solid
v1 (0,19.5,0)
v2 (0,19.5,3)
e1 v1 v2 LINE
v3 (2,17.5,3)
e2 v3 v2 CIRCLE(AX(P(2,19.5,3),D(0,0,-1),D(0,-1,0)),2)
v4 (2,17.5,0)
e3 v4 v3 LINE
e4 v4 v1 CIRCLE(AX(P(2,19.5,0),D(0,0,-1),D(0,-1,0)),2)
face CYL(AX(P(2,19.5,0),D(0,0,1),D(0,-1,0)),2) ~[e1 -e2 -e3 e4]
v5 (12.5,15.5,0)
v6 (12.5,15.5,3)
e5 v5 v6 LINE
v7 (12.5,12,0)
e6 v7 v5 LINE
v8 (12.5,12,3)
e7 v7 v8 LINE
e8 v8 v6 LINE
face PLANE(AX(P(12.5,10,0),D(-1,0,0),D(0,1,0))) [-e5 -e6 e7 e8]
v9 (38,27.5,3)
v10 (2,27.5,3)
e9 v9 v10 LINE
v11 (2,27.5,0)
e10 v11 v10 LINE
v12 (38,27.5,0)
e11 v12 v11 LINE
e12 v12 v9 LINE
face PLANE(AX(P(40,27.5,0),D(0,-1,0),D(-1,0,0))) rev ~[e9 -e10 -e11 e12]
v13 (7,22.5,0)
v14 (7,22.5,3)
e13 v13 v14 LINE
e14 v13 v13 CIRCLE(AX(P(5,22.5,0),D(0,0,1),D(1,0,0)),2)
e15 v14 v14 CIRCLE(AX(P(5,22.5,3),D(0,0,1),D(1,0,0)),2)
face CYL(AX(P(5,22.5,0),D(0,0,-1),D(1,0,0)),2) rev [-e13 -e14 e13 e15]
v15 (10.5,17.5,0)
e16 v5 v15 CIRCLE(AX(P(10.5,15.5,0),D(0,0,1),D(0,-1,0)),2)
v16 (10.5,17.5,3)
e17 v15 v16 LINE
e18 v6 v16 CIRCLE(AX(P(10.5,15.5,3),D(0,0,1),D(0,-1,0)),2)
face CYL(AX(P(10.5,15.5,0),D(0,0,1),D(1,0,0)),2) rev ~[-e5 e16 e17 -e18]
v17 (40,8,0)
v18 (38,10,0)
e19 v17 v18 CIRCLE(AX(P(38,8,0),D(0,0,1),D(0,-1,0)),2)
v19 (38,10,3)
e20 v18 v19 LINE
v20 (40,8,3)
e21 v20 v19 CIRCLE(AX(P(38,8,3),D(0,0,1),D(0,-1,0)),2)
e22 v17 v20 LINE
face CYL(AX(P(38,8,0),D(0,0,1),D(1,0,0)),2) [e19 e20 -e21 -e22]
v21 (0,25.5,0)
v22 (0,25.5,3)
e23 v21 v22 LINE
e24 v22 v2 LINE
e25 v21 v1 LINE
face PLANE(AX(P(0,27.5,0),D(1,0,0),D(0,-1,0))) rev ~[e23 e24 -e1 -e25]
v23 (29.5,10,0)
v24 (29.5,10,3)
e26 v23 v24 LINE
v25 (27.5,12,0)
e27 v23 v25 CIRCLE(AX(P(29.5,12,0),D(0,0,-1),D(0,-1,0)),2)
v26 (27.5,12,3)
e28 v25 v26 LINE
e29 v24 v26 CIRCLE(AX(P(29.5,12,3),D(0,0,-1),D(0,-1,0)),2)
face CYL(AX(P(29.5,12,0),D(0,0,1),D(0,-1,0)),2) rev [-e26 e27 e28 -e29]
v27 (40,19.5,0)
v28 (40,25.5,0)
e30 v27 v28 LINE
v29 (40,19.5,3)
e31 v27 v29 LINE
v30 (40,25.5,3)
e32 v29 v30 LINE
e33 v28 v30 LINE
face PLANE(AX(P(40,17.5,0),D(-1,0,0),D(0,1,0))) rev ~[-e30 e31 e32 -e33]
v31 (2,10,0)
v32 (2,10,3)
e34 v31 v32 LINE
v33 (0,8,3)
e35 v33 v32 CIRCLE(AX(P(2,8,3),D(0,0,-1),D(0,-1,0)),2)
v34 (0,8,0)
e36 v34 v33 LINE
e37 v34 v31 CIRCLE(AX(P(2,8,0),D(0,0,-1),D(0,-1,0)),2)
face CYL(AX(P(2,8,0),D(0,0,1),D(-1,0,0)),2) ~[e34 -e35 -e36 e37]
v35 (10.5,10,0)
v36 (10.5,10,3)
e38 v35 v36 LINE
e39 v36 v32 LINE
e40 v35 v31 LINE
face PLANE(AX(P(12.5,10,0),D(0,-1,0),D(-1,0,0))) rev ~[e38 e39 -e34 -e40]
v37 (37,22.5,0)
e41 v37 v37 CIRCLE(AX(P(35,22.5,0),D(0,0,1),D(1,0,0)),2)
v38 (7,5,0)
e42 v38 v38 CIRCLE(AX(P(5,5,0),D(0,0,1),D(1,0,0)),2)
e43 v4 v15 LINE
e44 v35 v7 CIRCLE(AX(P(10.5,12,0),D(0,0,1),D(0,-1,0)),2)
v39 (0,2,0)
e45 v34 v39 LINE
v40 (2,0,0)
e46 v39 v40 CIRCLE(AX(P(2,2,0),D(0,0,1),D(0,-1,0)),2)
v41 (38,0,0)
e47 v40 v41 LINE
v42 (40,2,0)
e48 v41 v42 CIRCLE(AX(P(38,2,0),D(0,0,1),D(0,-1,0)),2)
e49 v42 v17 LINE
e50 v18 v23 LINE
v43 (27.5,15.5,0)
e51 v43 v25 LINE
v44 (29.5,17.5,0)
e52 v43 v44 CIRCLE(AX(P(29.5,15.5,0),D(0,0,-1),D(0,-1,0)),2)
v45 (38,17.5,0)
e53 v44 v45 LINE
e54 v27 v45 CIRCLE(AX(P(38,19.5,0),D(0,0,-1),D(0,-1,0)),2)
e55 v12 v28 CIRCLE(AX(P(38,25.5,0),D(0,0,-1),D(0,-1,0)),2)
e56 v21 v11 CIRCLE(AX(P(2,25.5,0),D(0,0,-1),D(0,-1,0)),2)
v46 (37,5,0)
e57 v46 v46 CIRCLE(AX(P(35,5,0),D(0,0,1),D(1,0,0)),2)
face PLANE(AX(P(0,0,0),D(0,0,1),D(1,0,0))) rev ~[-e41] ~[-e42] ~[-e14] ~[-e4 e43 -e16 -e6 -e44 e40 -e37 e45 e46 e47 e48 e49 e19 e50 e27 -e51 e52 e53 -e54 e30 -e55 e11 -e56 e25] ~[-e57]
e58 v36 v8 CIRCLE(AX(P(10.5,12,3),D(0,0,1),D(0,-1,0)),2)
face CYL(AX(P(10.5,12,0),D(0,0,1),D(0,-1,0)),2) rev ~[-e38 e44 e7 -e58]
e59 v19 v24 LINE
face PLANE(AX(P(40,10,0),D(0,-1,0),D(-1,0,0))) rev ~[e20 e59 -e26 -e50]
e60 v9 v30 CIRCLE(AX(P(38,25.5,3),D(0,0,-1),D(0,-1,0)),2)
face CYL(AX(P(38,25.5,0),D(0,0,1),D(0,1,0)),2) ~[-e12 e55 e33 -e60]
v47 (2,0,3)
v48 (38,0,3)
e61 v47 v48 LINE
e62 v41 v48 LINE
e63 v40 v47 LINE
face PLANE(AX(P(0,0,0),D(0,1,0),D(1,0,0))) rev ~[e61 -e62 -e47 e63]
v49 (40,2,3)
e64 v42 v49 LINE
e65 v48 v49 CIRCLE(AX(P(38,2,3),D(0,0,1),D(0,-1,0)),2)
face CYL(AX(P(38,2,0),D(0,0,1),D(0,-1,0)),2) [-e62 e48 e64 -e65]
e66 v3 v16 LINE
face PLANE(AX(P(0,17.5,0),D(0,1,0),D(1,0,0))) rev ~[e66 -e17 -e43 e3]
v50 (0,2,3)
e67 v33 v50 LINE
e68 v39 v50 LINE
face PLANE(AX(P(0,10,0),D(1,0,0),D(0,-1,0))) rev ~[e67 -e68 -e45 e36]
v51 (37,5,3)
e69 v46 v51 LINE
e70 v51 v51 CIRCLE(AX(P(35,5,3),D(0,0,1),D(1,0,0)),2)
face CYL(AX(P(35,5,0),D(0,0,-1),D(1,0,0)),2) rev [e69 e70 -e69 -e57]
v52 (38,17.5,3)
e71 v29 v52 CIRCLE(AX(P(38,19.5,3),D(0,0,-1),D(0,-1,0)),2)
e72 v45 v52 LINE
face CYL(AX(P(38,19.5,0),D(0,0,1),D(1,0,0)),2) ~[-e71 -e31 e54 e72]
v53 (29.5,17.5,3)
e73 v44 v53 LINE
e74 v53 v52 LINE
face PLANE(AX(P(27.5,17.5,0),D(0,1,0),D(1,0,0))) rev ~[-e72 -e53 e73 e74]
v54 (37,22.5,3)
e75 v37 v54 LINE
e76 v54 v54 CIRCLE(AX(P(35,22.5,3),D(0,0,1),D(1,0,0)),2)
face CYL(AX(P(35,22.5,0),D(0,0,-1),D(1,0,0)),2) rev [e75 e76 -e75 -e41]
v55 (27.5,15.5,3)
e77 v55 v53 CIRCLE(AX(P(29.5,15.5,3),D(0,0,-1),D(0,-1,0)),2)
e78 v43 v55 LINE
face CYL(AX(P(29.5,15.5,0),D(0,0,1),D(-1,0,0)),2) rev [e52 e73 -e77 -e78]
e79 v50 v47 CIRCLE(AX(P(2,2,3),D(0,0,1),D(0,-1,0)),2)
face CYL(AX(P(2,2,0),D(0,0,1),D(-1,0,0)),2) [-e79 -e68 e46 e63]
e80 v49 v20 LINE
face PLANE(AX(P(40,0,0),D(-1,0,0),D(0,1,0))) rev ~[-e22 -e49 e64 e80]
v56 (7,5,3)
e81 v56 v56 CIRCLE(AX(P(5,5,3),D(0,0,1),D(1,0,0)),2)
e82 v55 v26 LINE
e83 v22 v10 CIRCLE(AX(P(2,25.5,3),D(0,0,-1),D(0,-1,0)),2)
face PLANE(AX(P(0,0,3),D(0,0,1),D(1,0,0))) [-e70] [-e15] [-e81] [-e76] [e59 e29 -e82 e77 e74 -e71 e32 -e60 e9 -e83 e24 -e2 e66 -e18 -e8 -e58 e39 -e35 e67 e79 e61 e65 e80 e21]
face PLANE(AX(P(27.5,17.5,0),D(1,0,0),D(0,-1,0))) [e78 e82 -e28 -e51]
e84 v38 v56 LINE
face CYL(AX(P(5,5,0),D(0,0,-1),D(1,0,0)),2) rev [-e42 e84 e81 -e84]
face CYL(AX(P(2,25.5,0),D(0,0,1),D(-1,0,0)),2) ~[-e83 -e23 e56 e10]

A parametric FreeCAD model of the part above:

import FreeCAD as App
import Part
import Sketcher
from FreeCAD import Vector


def edges_at(feature, points):
    """Names of the edges that pass closest to the given points."""
    edges = feature.Shape.Edges
    near = lambda p: min(range(len(edges)), key=lambda i: edges[i].distToShape(Part.Vertex(*p))[0])
    return sorted({f"Edge{near(p) + 1}" for p in points})

doc = App.newDocument("Part")
body = doc.addObject("PartDesign::Body", "Body")

sketch1 = doc.addObject("Sketcher::SketchObject", "Sketch")
body.addObject(sketch1)
sketch1.AttachmentSupport = (doc.XY_Plane, [""])
sketch1.MapMode = "FlatFace"
sketch1.addGeometry([
    Part.LineSegment(Vector(0, 10, 0), Vector(0, 0, 0)),
    Part.LineSegment(Vector(0, 0, 0), Vector(40, 0, 0)),
    Part.LineSegment(Vector(40, 0, 0), Vector(40, 10, 0)),
    Part.LineSegment(Vector(40, 10, 0), Vector(27.5, 10, 0)),
    Part.LineSegment(Vector(27.5, 10, 0), Vector(27.5, 17.5, 0)),
    Part.LineSegment(Vector(27.5, 17.5, 0), Vector(40, 17.5, 0)),
    Part.LineSegment(Vector(40, 17.5, 0), Vector(40, 27.5, 0)),
    Part.LineSegment(Vector(40, 27.5, 0), Vector(0, 27.5, 0)),
    Part.LineSegment(Vector(0, 27.5, 0), Vector(0, 17.5, 0)),
    Part.LineSegment(Vector(0, 17.5, 0), Vector(12.5, 17.5, 0)),
    Part.LineSegment(Vector(12.5, 17.5, 0), Vector(12.5, 10, 0)),
    Part.LineSegment(Vector(12.5, 10, 0), Vector(0, 10, 0)),
    Part.Circle(Vector(5, 5, 0), Vector(0, 0, 1), 2),
    Part.Circle(Vector(35, 5, 0), Vector(0, 0, 1), 2),
    Part.Circle(Vector(35, 22.5, 0), Vector(0, 0, 1), 2),
    Part.Circle(Vector(5, 22.5, 0), Vector(0, 0, 1), 2),
], False)
sketch1.addConstraint([
    Sketcher.Constraint("Coincident", 0, 2, 1, 1),
    Sketcher.Constraint("Coincident", 1, 2, 2, 1),
    Sketcher.Constraint("Coincident", 2, 2, 3, 1),
    Sketcher.Constraint("Coincident", 3, 2, 4, 1),
    Sketcher.Constraint("Coincident", 4, 2, 5, 1),
    Sketcher.Constraint("Coincident", 5, 2, 6, 1),
    Sketcher.Constraint("Coincident", 6, 2, 7, 1),
    Sketcher.Constraint("Coincident", 7, 2, 8, 1),
    Sketcher.Constraint("Coincident", 8, 2, 9, 1),
    Sketcher.Constraint("Coincident", 9, 2, 10, 1),
    Sketcher.Constraint("Coincident", 10, 2, 11, 1),
    Sketcher.Constraint("Coincident", 11, 2, 0, 1),
    Sketcher.Constraint("Vertical", 0),
    Sketcher.Constraint("Horizontal", 1),
    Sketcher.Constraint("Vertical", 2),
    Sketcher.Constraint("Horizontal", 3),
    Sketcher.Constraint("Vertical", 4),
    Sketcher.Constraint("Horizontal", 5),
    Sketcher.Constraint("Vertical", 6),
    Sketcher.Constraint("Horizontal", 7),
    Sketcher.Constraint("Vertical", 8),
    Sketcher.Constraint("Horizontal", 9),
    Sketcher.Constraint("Vertical", 10),
    Sketcher.Constraint("Horizontal", 11),
    Sketcher.Constraint("Coincident", 0, 2, -1, 1),
    Sketcher.Constraint("Equal", 12, 13),
    Sketcher.Constraint("Equal", 13, 14),
    Sketcher.Constraint("Equal", 14, 15),
    Sketcher.Constraint("PointOnObject", 7, 2, -2),
    Sketcher.Constraint("Horizontal", 12, 3, 13, 3),
    Sketcher.Constraint("Horizontal", 14, 3, 15, 3),
    Sketcher.Constraint("Horizontal", 5, 2, 8, 2),
    Sketcher.Constraint("Horizontal", 3, 2, 10, 2),
    Sketcher.Constraint("Vertical", 13, 3, 14, 3),
    Sketcher.Constraint("Vertical", 12, 3, 15, 3),
    Sketcher.Constraint("Vertical", 2, 2, 5, 2),
    Sketcher.Constraint("Equal", 5, 9),
    Sketcher.Constraint("Equal", 2, 6),
    Sketcher.Constraint("Diameter", 12, 4.0),
    Sketcher.Constraint("DistanceX", 1, 1, 1, 2, 40.0),
    Sketcher.Constraint("DistanceY", 0, 2, 0, 1, 10.0),
    Sketcher.Constraint("DistanceX", 3, 2, 3, 1, 12.5),
    Sketcher.Constraint("DistanceY", 4, 1, 4, 2, 7.5),
    Sketcher.Constraint("DistanceX", -1, 1, 12, 3, 5.0),
    Sketcher.Constraint("DistanceY", -1, 1, 12, 3, 5.0),
    Sketcher.Constraint("DistanceX", 13, 3, 1, 2, 5.0),
    Sketcher.Constraint("DistanceY", 4, 2, 14, 3, 5.0),
])
pad1 = doc.addObject("PartDesign::Pad", "Pad")
body.addObject(pad1)
pad1.Profile = sketch1
pad1.Length = 3
doc.recompute()

fillet = doc.addObject("PartDesign::Fillet", "Fillet")
body.addObject(fillet)
fillet.Base = (pad1, edges_at(pad1, [
    (40, 27.5, 1.5),
    (40, 17.5, 1.5),
    (0, 27.5, 1.5),
    (0, 17.5, 1.5),
    (12.5, 17.5, 1.5),
    (27.5, 17.5, 1.5),
    (27.5, 10, 1.5),
    (40, 10, 1.5),
    (40, 0, 1.5),
    (12.5, 10, 1.5),
    (0, 10, 1.5),
    (0, 0, 1.5),
]))
fillet.Radius = 2

doc.recompute()
